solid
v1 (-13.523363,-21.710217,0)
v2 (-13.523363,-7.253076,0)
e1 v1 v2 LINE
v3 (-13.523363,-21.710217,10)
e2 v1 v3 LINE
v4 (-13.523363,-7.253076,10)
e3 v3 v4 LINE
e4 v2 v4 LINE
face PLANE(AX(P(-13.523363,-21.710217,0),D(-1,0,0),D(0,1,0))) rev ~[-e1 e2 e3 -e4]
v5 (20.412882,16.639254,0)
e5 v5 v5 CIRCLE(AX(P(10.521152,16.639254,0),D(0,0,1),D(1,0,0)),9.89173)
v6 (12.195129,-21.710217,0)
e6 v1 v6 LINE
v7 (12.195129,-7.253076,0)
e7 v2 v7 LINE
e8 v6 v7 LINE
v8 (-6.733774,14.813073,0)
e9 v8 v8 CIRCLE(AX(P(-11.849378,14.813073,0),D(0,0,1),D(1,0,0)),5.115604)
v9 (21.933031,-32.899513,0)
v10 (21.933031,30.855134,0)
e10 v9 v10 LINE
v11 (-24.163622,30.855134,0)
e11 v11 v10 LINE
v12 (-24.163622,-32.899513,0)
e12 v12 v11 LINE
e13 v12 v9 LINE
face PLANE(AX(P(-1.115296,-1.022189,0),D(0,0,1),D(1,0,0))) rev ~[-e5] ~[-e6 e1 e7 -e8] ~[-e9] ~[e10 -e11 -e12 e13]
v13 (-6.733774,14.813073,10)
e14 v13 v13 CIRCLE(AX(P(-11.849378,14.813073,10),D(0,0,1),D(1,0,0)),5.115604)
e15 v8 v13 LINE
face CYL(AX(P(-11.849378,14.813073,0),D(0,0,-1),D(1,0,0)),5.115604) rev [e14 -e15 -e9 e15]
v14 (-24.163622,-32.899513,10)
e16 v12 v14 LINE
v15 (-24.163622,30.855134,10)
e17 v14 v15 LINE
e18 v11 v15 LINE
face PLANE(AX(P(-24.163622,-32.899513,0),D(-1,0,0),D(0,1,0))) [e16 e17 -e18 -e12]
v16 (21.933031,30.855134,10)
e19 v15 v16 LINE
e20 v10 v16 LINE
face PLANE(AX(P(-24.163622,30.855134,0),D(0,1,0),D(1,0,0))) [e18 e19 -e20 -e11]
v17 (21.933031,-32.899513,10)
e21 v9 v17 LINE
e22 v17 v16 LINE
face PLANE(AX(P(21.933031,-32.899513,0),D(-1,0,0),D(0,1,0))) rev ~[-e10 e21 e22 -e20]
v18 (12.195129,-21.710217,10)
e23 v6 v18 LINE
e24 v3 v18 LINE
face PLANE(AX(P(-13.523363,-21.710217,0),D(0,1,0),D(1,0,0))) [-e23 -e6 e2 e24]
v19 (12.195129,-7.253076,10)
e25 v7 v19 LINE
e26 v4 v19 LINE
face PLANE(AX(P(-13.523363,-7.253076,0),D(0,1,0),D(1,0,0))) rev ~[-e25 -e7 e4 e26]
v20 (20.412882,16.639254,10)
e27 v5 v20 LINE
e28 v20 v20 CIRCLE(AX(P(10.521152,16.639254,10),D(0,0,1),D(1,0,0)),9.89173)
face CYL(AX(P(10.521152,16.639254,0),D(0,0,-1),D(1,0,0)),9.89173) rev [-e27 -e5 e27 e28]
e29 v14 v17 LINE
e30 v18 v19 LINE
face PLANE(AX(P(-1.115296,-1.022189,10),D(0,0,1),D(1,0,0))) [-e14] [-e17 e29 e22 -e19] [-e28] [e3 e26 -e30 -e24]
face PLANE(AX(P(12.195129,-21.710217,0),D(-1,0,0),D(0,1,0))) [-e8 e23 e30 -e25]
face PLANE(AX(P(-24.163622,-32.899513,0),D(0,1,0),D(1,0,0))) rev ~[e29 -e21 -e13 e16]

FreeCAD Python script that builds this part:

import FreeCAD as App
import Part
import Sketcher
Q = App.Units.Quantity


def add_polygon(sketch, points):
    """Adds a closed chain of lines whose ends are joined by coincident constraints."""
    first, n = sketch.GeometryCount, len(points)
    for a, b in zip(points, points[1:] + points[:1]):
        sketch.addGeometry(Part.LineSegment(App.Vector(*a, 0), App.Vector(*b, 0)), False)
    for i in range(n):
        sketch.addConstraint(Sketcher.Constraint("Coincident", first + i, 2, first + (i + 1) % n, 1))

doc = App.newDocument("Part")
params = doc.addObject("Spreadsheet::Sheet", "Params")
for row, (alias, value) in enumerate([
    ("pad1_length", "10 mm"),
], start=1):
    params.set(f"A{row}", alias)
    params.set(f"B{row}", "=" + value)
    params.setAlias(f"B{row}", alias)

body = doc.addObject("PartDesign::Body", "Body")

# Sketch on XY plane
sketch1 = body.newObject("Sketcher::SketchObject", "Sketch")
sketch1.AttachmentSupport = (doc.getObject("XY_Plane"), [""])
sketch1.MapMode = "FlatFace"
add_polygon(sketch1, [(-24, 31), (-24, -33), (22, -33), (22, 31)])  # lines 0-3
add_polygon(sketch1, [(12, -22), (-14, -22), (-14, -7), (12, -7)])  # lines 4-7
sketch1.addGeometry(Part.Circle(App.Vector(-12, 15, 0), App.Vector(0, 0, 1), 5), False)  # 8
sketch1.addGeometry(Part.Circle(App.Vector(11, 17, 0), App.Vector(0, 0, 1), 10), False)  # 9
sketch1.addConstraint([
    Sketcher.Constraint("Vertical", 0),
    Sketcher.Constraint("Horizontal", 1),
    Sketcher.Constraint("Vertical", 2),
    Sketcher.Constraint("Horizontal", 3),
    Sketcher.Constraint("Horizontal", 4),
    Sketcher.Constraint("Vertical", 5),
    Sketcher.Constraint("Horizontal", 6),
    Sketcher.Constraint("Vertical", 7),
    Sketcher.Constraint("Diameter", 9, Q("19.78346 mm")),
    Sketcher.Constraint("Diameter", 8, Q("10.231208 mm")),
    Sketcher.Constraint("DistanceX", 4, 2, 4, 1, Q("25.718492 mm")),
    Sketcher.Constraint("DistanceY", 5, 1, 5, 2, Q("14.457141 mm")),
    Sketcher.Constraint("DistanceX", 6, 2, 1, 2, Q("9.737902 mm")),
    Sketcher.Constraint("DistanceX", 1, 1, 1, 2, Q("46.096653 mm")),
    Sketcher.Constraint("DistanceY", 0, 2, 0, 1, Q("63.754647 mm")),
    Sketcher.Constraint("DistanceX", -1, 1, 1, 2, Q("21.933031 mm")),
    Sketcher.Constraint("DistanceX", 8, 3, 9, 3, Q("22.37053 mm")),
    Sketcher.Constraint("DistanceY", 8, 3, 9, 3, Q("1.826181 mm")),
    Sketcher.Constraint("DistanceX", 9, 3, 1, 2, Q("11.411879 mm")),
    Sketcher.Constraint("DistanceY", 9, 3, 2, 2, Q("14.21588 mm")),
    Sketcher.Constraint("DistanceY", 4, 2, 8, 3, Q("36.523291 mm")),
    Sketcher.Constraint("DistanceY", -1, 1, 8, 3, Q("14.813073 mm")),
])
pad1 = body.newObject("PartDesign::Pad", "Pad")
pad1.Profile = sketch1
pad1.setExpression("Length", "Params.pad1_length")

doc.recompute()
